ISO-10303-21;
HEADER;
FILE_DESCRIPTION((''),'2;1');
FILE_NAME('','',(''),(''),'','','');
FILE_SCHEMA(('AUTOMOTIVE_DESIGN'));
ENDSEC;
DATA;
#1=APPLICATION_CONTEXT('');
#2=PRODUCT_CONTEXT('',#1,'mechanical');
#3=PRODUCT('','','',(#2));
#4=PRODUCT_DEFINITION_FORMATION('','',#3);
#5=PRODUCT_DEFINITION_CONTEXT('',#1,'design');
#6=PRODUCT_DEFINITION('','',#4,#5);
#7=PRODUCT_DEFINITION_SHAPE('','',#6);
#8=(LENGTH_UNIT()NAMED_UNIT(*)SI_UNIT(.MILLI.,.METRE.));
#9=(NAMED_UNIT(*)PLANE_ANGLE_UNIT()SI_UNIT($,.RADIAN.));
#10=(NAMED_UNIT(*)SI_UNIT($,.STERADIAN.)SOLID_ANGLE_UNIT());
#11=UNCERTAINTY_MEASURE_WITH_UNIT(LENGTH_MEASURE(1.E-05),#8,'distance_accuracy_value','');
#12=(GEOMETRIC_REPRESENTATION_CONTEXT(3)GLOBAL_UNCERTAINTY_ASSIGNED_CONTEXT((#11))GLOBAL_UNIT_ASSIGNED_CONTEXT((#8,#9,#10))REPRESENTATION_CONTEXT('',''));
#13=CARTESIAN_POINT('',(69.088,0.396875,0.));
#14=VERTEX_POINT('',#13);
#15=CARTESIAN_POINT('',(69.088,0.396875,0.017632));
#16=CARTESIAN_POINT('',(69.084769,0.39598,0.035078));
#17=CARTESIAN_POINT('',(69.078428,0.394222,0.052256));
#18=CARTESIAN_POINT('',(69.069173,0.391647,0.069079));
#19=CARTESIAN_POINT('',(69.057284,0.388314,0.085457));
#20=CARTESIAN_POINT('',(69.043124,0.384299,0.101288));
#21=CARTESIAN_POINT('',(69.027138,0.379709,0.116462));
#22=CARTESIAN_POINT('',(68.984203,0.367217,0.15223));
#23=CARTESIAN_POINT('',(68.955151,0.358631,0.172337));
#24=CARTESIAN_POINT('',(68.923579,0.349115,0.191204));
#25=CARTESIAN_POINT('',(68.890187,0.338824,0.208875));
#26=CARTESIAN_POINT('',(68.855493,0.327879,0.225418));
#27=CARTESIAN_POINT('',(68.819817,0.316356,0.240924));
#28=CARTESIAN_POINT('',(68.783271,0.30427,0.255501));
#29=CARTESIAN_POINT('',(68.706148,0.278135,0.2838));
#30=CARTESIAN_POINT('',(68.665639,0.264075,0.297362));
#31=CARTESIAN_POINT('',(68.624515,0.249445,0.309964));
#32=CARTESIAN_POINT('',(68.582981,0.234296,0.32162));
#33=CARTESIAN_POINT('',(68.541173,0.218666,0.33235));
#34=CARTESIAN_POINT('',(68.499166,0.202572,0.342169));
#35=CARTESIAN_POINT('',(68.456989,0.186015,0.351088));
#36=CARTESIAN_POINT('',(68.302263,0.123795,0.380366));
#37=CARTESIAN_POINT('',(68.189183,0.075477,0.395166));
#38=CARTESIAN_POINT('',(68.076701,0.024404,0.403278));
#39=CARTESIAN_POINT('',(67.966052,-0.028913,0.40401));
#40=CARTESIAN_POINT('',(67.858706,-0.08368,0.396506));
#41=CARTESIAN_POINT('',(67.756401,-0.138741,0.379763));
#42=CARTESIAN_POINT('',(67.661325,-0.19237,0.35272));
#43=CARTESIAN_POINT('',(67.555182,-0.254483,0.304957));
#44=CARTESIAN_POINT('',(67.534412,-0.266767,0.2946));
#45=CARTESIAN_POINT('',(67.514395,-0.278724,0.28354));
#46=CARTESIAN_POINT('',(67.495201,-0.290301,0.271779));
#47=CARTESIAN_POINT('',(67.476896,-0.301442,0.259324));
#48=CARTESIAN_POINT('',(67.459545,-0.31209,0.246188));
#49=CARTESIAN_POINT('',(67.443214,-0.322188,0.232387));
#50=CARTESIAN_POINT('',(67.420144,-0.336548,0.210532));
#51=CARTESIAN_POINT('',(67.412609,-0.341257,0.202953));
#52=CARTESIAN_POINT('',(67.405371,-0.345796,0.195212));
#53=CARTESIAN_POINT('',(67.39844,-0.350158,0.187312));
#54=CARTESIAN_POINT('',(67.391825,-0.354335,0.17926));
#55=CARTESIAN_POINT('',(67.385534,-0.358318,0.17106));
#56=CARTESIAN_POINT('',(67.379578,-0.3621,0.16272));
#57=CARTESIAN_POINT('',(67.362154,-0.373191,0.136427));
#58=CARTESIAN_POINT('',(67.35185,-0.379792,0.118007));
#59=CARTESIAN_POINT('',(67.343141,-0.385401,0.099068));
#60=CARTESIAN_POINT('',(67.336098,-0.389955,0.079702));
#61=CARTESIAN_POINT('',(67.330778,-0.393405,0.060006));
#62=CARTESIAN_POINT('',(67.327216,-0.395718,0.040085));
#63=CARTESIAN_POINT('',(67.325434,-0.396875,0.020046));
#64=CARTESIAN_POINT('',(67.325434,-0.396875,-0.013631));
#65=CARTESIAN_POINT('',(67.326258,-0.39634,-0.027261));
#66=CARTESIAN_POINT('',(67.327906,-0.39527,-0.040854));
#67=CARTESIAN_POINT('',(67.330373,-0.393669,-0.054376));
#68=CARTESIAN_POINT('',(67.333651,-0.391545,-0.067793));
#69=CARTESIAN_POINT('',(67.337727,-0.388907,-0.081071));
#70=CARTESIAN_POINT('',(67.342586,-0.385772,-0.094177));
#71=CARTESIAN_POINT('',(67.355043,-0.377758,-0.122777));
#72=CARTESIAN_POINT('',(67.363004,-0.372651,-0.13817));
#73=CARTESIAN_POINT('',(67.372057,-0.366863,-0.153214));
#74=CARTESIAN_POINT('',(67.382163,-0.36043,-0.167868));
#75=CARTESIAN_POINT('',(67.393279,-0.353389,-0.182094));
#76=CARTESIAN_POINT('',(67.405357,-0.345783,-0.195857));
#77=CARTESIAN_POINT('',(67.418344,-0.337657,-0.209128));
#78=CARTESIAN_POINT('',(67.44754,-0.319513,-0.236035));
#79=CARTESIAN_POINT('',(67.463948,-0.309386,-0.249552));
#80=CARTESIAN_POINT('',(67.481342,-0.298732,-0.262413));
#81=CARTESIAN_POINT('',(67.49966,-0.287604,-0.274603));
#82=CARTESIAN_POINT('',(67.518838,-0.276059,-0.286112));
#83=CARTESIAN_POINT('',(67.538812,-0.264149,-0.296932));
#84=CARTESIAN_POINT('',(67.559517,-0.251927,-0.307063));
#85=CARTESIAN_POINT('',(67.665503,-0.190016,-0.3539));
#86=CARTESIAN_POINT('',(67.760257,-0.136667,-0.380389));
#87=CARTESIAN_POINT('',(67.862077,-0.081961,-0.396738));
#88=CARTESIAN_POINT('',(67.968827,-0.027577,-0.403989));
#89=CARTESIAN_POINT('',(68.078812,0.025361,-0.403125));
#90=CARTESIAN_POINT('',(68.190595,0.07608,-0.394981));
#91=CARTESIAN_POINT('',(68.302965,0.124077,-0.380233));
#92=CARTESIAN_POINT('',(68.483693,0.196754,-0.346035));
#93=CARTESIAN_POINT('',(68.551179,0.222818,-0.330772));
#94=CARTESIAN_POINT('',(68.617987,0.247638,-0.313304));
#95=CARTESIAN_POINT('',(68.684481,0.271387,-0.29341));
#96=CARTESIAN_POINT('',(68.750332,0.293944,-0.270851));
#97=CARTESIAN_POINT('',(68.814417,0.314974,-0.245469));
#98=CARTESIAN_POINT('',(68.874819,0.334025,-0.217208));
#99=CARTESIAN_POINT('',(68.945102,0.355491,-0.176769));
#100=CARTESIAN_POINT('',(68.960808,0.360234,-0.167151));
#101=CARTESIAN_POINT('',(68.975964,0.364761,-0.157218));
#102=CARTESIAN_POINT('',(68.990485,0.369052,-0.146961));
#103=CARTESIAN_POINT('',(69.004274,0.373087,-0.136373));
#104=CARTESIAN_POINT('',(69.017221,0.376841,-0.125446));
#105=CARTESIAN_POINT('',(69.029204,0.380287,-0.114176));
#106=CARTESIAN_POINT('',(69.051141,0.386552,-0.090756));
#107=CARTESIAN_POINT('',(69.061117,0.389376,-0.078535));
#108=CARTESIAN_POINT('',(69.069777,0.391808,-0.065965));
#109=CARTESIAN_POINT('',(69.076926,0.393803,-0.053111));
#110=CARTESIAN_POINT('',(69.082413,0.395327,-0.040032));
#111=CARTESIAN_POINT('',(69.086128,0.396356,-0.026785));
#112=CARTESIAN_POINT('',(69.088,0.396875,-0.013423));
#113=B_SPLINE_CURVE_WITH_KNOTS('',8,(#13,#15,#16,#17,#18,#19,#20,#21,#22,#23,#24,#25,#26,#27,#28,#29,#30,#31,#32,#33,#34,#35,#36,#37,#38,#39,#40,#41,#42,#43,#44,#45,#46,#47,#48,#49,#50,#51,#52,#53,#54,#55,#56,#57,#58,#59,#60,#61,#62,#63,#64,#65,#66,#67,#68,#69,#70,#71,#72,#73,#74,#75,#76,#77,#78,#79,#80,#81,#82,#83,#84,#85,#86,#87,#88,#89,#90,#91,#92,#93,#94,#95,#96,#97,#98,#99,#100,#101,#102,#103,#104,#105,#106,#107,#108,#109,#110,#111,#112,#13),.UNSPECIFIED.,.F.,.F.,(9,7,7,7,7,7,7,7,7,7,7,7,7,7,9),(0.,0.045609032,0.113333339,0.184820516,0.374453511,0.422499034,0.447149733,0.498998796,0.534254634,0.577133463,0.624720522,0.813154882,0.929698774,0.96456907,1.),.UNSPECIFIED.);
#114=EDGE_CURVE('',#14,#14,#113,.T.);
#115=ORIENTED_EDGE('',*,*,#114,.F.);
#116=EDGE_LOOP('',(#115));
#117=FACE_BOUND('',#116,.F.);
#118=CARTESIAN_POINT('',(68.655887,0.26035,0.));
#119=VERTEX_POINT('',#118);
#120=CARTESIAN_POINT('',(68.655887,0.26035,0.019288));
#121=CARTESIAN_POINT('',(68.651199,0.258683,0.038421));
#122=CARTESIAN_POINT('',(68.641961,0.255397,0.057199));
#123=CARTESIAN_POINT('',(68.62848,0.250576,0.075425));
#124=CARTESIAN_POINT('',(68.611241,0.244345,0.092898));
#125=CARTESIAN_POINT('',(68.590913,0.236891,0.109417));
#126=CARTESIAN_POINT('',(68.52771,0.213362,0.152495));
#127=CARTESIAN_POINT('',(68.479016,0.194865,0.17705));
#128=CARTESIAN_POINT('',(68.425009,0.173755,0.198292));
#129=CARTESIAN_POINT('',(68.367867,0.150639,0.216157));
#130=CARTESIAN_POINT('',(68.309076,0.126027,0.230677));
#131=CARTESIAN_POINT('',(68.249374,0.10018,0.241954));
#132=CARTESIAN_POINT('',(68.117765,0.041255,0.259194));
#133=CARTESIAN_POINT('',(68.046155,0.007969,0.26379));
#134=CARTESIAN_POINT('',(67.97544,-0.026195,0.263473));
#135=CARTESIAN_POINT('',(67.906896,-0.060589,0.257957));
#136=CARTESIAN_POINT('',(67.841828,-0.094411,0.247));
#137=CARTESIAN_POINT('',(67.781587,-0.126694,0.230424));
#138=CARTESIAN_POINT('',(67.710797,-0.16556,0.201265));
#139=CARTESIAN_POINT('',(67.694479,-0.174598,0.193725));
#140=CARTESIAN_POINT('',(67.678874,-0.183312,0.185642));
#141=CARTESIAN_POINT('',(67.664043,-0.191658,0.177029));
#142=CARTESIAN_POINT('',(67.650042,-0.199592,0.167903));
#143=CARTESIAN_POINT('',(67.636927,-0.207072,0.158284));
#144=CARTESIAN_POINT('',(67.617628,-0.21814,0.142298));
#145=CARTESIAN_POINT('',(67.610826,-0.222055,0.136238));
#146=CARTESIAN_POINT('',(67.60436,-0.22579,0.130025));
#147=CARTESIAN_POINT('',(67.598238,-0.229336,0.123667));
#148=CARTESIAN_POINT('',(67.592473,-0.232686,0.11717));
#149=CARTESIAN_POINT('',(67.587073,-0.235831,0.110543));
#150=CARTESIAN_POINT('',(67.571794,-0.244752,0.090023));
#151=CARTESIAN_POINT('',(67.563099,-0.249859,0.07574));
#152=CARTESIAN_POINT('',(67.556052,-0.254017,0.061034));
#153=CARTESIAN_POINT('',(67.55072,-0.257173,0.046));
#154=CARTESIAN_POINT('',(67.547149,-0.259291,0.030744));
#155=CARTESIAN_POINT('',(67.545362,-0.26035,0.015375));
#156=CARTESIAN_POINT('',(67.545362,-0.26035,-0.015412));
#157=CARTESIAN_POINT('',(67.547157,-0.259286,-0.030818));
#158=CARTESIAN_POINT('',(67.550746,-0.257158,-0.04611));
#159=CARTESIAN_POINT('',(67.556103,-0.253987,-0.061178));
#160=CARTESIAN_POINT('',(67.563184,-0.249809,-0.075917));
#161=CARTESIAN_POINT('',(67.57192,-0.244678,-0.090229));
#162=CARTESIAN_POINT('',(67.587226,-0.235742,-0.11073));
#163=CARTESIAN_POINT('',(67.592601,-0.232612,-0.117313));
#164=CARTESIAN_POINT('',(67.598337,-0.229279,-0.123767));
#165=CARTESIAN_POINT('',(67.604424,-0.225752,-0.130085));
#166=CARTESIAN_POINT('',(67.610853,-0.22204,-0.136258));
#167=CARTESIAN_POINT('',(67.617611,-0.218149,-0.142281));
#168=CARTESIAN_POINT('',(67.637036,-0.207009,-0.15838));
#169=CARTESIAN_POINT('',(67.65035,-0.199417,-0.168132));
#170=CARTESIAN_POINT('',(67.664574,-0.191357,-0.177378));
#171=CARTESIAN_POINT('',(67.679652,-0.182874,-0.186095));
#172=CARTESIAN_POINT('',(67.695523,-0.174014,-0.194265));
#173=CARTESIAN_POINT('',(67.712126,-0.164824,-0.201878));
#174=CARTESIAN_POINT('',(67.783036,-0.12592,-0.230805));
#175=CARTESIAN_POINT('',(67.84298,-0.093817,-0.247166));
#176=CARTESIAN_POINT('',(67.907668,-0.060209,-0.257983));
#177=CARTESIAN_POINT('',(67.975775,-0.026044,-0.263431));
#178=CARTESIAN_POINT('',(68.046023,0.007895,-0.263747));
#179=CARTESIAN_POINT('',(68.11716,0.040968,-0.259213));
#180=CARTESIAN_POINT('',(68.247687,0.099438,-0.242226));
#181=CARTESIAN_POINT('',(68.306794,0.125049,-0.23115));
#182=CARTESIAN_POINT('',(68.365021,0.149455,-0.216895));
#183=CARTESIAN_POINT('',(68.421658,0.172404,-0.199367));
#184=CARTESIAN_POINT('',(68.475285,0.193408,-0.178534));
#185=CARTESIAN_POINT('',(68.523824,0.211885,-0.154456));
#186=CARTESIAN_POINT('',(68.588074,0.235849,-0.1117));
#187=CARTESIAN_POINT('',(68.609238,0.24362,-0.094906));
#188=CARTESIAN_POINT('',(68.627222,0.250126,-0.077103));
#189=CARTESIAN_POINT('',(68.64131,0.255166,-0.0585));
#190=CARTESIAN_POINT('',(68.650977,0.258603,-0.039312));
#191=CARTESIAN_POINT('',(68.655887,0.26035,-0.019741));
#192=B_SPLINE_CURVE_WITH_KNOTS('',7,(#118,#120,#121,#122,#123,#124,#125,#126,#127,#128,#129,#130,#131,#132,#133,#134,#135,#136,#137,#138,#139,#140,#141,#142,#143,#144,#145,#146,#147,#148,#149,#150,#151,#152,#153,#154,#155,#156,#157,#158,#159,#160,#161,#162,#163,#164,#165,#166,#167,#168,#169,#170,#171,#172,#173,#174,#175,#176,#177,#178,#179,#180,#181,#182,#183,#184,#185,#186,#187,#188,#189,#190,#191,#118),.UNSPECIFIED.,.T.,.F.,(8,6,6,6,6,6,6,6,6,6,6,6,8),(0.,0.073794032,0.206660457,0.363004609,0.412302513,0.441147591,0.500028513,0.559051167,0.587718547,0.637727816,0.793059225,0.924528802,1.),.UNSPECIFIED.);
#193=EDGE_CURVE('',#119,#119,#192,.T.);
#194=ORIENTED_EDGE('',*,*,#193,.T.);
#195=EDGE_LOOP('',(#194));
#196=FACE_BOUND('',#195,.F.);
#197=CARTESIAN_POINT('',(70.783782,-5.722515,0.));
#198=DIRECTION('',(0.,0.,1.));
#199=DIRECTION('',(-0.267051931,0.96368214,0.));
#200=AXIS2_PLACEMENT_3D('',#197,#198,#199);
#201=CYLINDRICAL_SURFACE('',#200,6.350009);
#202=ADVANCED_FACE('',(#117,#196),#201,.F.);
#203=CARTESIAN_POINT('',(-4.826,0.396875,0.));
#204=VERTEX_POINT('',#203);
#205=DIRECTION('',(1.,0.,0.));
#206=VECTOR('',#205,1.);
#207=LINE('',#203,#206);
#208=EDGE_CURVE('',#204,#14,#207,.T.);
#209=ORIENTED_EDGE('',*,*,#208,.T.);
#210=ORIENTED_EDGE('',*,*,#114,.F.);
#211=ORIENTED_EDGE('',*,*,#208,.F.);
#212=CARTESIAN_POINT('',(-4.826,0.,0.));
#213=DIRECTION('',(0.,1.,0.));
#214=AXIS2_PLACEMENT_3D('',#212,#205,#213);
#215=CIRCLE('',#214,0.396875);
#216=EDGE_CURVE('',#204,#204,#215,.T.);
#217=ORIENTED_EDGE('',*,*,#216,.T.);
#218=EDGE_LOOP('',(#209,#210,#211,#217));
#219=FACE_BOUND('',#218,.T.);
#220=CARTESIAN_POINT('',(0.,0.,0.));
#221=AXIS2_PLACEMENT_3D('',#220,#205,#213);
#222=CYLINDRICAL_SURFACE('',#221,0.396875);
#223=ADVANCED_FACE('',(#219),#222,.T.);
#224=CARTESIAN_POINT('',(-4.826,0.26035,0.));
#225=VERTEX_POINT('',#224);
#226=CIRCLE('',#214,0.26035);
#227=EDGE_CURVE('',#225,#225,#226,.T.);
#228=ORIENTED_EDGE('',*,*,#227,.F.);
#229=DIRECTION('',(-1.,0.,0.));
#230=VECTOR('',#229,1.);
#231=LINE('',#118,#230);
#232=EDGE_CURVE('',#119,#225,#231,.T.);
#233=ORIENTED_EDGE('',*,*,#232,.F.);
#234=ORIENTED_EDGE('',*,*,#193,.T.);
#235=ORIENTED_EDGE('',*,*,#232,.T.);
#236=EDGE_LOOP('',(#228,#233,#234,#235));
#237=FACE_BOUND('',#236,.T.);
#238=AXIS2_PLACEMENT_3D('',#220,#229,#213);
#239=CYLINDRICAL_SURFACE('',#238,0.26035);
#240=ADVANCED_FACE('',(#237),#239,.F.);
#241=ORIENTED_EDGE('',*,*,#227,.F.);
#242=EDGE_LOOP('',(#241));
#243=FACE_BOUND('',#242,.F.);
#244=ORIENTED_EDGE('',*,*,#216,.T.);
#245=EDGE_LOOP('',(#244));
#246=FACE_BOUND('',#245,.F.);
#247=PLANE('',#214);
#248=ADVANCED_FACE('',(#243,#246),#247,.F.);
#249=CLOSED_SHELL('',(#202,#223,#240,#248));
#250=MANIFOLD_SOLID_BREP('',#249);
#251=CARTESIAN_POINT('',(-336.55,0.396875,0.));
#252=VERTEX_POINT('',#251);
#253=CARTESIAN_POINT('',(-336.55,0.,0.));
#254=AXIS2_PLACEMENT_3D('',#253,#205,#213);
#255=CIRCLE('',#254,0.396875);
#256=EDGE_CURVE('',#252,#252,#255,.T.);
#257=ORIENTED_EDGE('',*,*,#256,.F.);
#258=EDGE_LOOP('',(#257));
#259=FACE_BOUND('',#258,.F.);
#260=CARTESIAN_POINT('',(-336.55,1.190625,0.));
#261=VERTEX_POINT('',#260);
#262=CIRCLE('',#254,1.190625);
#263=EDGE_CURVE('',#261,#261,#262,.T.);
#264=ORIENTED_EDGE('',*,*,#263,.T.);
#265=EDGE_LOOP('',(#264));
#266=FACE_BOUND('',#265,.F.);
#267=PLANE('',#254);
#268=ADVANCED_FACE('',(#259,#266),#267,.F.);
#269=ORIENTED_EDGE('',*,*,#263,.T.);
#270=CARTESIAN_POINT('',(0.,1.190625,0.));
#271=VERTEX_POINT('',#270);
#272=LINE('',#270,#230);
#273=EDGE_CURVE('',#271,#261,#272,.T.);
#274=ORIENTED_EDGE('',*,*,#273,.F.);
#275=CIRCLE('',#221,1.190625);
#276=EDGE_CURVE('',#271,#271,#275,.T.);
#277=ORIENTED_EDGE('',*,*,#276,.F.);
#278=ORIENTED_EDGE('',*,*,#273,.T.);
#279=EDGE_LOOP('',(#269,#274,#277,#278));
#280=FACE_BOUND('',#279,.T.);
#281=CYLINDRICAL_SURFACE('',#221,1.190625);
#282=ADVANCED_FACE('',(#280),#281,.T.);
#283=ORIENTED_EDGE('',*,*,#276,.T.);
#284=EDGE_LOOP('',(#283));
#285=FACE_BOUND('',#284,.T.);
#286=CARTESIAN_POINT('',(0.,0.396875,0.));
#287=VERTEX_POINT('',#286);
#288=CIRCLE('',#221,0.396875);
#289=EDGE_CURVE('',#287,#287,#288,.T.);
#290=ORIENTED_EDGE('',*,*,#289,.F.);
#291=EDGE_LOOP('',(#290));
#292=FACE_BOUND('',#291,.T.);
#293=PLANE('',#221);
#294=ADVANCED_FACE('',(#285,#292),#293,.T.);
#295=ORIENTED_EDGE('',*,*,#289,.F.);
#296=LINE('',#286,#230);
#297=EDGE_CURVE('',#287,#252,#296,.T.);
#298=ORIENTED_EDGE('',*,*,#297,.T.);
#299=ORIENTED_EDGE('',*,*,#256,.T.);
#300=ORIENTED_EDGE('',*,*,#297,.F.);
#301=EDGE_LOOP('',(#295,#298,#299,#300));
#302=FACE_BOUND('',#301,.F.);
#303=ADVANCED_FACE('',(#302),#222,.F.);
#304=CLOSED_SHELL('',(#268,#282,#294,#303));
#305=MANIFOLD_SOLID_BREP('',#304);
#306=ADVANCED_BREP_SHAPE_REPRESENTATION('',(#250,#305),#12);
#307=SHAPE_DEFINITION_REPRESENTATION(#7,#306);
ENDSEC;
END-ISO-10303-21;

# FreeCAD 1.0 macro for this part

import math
import FreeCAD as App
import Part
import Sketcher
from FreeCAD import Vector
Q = App.Units.Quantity

doc = App.newDocument("Part")
body = doc.addObject("PartDesign::Body", "Body")

# Sketch on YZ plane
sketch1 = body.newObject("Sketcher::SketchObject", "Sketch")
sketch1.AttachmentSupport = (doc.getObject("YZ_Plane"), [""])
sketch1.MapMode = "FlatFace"
sketch1.addGeometry(Part.Circle(Vector(0, 0, 0), Vector(0, 0, 1), 1.19), False)
sketch1.addGeometry(Part.Circle(Vector(0, 0, 0), Vector(0, 0, 1), 0.4), False)
sketch1.addConstraint(Sketcher.Constraint("Coincident", 0, 3, -1, 1))
sketch1.addConstraint(Sketcher.Constraint("Coincident", 1, 3, -1, 1))
sketch1.addConstraint(Sketcher.Constraint("Diameter", 0, Q("0.09375 in")))
sketch1.addConstraint(Sketcher.Constraint("Diameter", 1, Q("0.03125 in")))
pad1 = body.newObject("PartDesign::Pad", "Pad")
pad1.Profile = sketch1
pad1.Length = Q("13.25 in")
pad1.Reversed = True
body2 = doc.addObject("PartDesign::Body", "Body001")

# Sketch on YZ plane
sketch2 = body2.newObject("Sketcher::SketchObject", "Sketch001")
sketch2.AttachmentSupport = (doc.getObject("YZ_Plane001"), [""])
sketch2.MapMode = "FlatFace"
sketch2.addGeometry(Part.Circle(Vector(0, 0, 0), Vector(0, 0, 1), 0.4), False)
sketch2.addGeometry(Part.Circle(Vector(0, 0, 0), Vector(0, 0, 1), 0.26), False)
sketch2.addConstraint(Sketcher.Constraint("Coincident", 0, 3, -1, 1))
sketch2.addConstraint(Sketcher.Constraint("Coincident", 1, 3, -1, 1))
sketch2.addConstraint(Sketcher.Constraint("Diameter", 0, Q("0.03125 in")))
sketch2.addConstraint(Sketcher.Constraint("Diameter", 1, Q("0.0205 in")))
pad2 = body2.newObject("PartDesign::Pad", "Pad001")
pad2.Profile = sketch2
pad2.Type = "TwoLengths"
pad2.Length = Q("2.72 in")
pad2.Length2 = Q("0.19 in")

# Sketch on XY plane
sketch3 = body2.newObject("Sketcher::SketchObject", "Sketch002")
sketch3.AttachmentSupport = (doc.getObject("XY_Plane001"), [""])
sketch3.MapMode = "FlatFace"
sketch3.addGeometry(Part.LineSegment(Vector(69.1, -0.5, 0), Vector(69.1, 0.4, 0)), False)
sketch3.addGeometry(Part.ArcOfCircle(Part.Circle(Vector(70.8, -5.7, 0), Vector(0, 0, 1), 6.4), math.radians(105.49), math.radians(124.54)), False)
sketch3.addGeometry(Part.LineSegment(Vector(67.2, -0.5, 0), Vector(69.1, -0.5, 0)), False)
sketch3.addConstraint(Sketcher.Constraint("Coincident", 0, 2, 1, 1))
sketch3.addConstraint(Sketcher.Constraint("Coincident", 1, 2, 2, 1))
sketch3.addConstraint(Sketcher.Constraint("Coincident", 2, 2, 0, 1))
sketch3.addConstraint(Sketcher.Constraint("Vertical", 0))
sketch3.addConstraint(Sketcher.Constraint("Horizontal", 2))
sketch3.addConstraint(Sketcher.Constraint("DistanceX", 2, 1, 2, 2, Q("0.075 in")))
sketch3.addConstraint(Sketcher.Constraint("DistanceY", 0, 1, 0, 2, Q("0.035 in")))
sketch3.addConstraint(Sketcher.Constraint("DistanceX", -1, 1, 0, 2, Q("2.72 in")))
sketch3.addConstraint(Sketcher.Constraint("DistanceY", -1, 1, 0, 2, Q("0.015625 in")))
sketch3.addConstraint(Sketcher.Constraint("Radius", 1, Q("6.350009 mm")))
pocket1 = body2.newObject("PartDesign::Pocket", "Pocket")
pocket1.Profile = sketch3
pocket1.Length = Q("1 in")
pocket1.Midplane = True

doc.recompute()
